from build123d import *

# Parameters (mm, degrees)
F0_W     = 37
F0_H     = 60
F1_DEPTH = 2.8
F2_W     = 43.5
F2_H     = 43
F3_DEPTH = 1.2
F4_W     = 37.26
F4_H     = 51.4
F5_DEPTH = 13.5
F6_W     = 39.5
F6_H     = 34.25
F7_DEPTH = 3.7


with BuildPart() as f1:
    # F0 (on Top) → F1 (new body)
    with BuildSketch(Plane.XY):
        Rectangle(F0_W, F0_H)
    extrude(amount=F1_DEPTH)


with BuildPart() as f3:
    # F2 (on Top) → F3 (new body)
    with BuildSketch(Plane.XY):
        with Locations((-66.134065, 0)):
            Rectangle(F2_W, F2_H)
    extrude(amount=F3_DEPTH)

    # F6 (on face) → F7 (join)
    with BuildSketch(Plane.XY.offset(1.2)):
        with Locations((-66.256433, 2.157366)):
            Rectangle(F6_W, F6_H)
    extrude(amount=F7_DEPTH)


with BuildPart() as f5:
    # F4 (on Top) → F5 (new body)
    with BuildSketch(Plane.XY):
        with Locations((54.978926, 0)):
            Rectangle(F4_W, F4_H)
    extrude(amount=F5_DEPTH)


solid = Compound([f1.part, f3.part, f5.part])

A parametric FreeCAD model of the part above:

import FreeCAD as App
import Part
import Sketcher

doc = App.newDocument("Part")
body = doc.addObject("PartDesign::Body", "Body")

# Sketch on XY plane
sketch1 = body.newObject("Sketcher::SketchObject", "Sketch")
sketch1.AttachmentSupport = (doc.getObject("XY_Plane"), [""])
sketch1.MapMode = "FlatFace"
sketch1.addGeometry(Part.LineSegment(App.Vector(-18.5, 30, 0), App.Vector(-18.5, -30, 0)), False)
sketch1.addGeometry(Part.LineSegment(App.Vector(-18.5, -30, 0), App.Vector(18.5, -30, 0)), False)
sketch1.addGeometry(Part.LineSegment(App.Vector(18.5, -30, 0), App.Vector(18.5, 30, 0)), False)
sketch1.addGeometry(Part.LineSegment(App.Vector(18.5, 30, 0), App.Vector(-18.5, 30, 0)), False)
sketch1.addConstraint(Sketcher.Constraint("Coincident", 0, 2, 1, 1))
sketch1.addConstraint(Sketcher.Constraint("Coincident", 1, 2, 2, 1))
sketch1.addConstraint(Sketcher.Constraint("Coincident", 2, 2, 3, 1))
sketch1.addConstraint(Sketcher.Constraint("Coincident", 3, 2, 0, 1))
sketch1.addConstraint(Sketcher.Constraint("Vertical", 0))
sketch1.addConstraint(Sketcher.Constraint("Horizontal", 1))
sketch1.addConstraint(Sketcher.Constraint("Vertical", 2))
sketch1.addConstraint(Sketcher.Constraint("Horizontal", 3))
sketch1.addConstraint(Sketcher.Constraint("Symmetric", 0, 2, 2, 2, -1, 1))
sketch1.addConstraint(Sketcher.Constraint("DistanceX", 1, 1, 1, 2, 37.0))
sketch1.addConstraint(Sketcher.Constraint("DistanceY", 0, 2, 0, 1, 60.0))
pad1 = body.newObject("PartDesign::Pad", "Pad")
pad1.Profile = sketch1
pad1.Length = 2.8
body2 = doc.addObject("PartDesign::Body", "Body001")

# Sketch on XY plane
sketch2 = body2.newObject("Sketcher::SketchObject", "Sketch001")
sketch2.AttachmentSupport = (doc.getObject("XY_Plane001"), [""])
sketch2.MapMode = "FlatFace"
sketch2.addGeometry(Part.LineSegment(App.Vector(-87.884065, 21.5, 0), App.Vector(-87.884065, -21.5, 0)), False)
sketch2.addGeometry(Part.LineSegment(App.Vector(-87.884065, -21.5, 0), App.Vector(-44.384065, -21.5, 0)), False)
sketch2.addGeometry(Part.LineSegment(App.Vector(-44.384065, -21.5, 0), App.Vector(-44.384065, 21.5, 0)), False)
sketch2.addGeometry(Part.LineSegment(App.Vector(-44.384065, 21.5, 0), App.Vector(-87.884065, 21.5, 0)), False)
sketch2.addConstraint(Sketcher.Constraint("Coincident", 0, 2, 1, 1))
sketch2.addConstraint(Sketcher.Constraint("Coincident", 1, 2, 2, 1))
sketch2.addConstraint(Sketcher.Constraint("Coincident", 2, 2, 3, 1))
sketch2.addConstraint(Sketcher.Constraint("Coincident", 3, 2, 0, 1))
sketch2.addConstraint(Sketcher.Constraint("Vertical", 0))
sketch2.addConstraint(Sketcher.Constraint("Horizontal", 1))
sketch2.addConstraint(Sketcher.Constraint("Vertical", 2))
sketch2.addConstraint(Sketcher.Constraint("Horizontal", 3))
sketch2.addConstraint(Sketcher.Constraint("DistanceY", 0, 2, 0, 1, 43.0))
sketch2.addConstraint(Sketcher.Constraint("DistanceX", 1, 1, 1, 2, 43.5))
sketch2.addConstraint(Sketcher.Constraint("DistanceY", 0, 2, -1, 1, 21.5))
sketch2.addConstraint(Sketcher.Constraint("DistanceX", 0, 2, -1, 1, 87.884065))
pad2 = body2.newObject("PartDesign::Pad", "Pad001")
pad2.Profile = sketch2
pad2.Length = 1.2

# Sketch on XY plane
sketch3 = body2.newObject("Sketcher::SketchObject", "Sketch002")
sketch3.AttachmentSupport = (doc.getObject("XY_Plane001"), [""])
sketch3.MapMode = "FlatFace"
sketch3.AttachmentOffset = App.Placement(App.Vector(0, 0, 1.2), App.Rotation())
sketch3.addGeometry(Part.LineSegment(App.Vector(-86.006433, 19.282366, 0), App.Vector(-86.006433, -14.967634, 0)), False)
sketch3.addGeometry(Part.LineSegment(App.Vector(-86.006433, -14.967634, 0), App.Vector(-46.506433, -14.967634, 0)), False)
sketch3.addGeometry(Part.LineSegment(App.Vector(-46.506433, -14.967634, 0), App.Vector(-46.506433, 19.282366, 0)), False)
sketch3.addGeometry(Part.LineSegment(App.Vector(-46.506433, 19.282366, 0), App.Vector(-86.006433, 19.282366, 0)), False)
sketch3.addConstraint(Sketcher.Constraint("Coincident", 0, 2, 1, 1))
sketch3.addConstraint(Sketcher.Constraint("Coincident", 1, 2, 2, 1))
sketch3.addConstraint(Sketcher.Constraint("Coincident", 2, 2, 3, 1))
sketch3.addConstraint(Sketcher.Constraint("Coincident", 3, 2, 0, 1))
sketch3.addConstraint(Sketcher.Constraint("Vertical", 0))
sketch3.addConstraint(Sketcher.Constraint("Horizontal", 1))
sketch3.addConstraint(Sketcher.Constraint("Vertical", 2))
sketch3.addConstraint(Sketcher.Constraint("Horizontal", 3))
sketch3.addConstraint(Sketcher.Constraint("DistanceX", 1, 1, 1, 2, 39.5))
sketch3.addConstraint(Sketcher.Constraint("DistanceY", 0, 2, 0, 1, 34.25))
sketch3.addConstraint(Sketcher.Constraint("DistanceX", 0, 2, -1, 1, 86.006433))
sketch3.addConstraint(Sketcher.Constraint("DistanceY", 0, 2, -1, 1, 14.967634))
pad3 = body2.newObject("PartDesign::Pad", "Pad002")
pad3.Profile = sketch3
pad3.Length = 3.7
body3 = doc.addObject("PartDesign::Body", "Body002")

# Sketch on XY plane
sketch4 = body3.newObject("Sketcher::SketchObject", "Sketch003")
sketch4.AttachmentSupport = (doc.getObject("XY_Plane002"), [""])
sketch4.MapMode = "FlatFace"
sketch4.addGeometry(Part.LineSegment(App.Vector(36.348926, 25.7, 0), App.Vector(36.348926, -25.7, 0)), False)
sketch4.addGeometry(Part.LineSegment(App.Vector(36.348926, -25.7, 0), App.Vector(73.608926, -25.7, 0)), False)
sketch4.addGeometry(Part.LineSegment(App.Vector(73.608926, -25.7, 0), App.Vector(73.608926, 25.7, 0)), False)
sketch4.addGeometry(Part.LineSegment(App.Vector(73.608926, 25.7, 0), App.Vector(36.348926, 25.7, 0)), False)
sketch4.addConstraint(Sketcher.Constraint("Coincident", 0, 2, 1, 1))
sketch4.addConstraint(Sketcher.Constraint("Coincident", 1, 2, 2, 1))
sketch4.addConstraint(Sketcher.Constraint("Coincident", 2, 2, 3, 1))
sketch4.addConstraint(Sketcher.Constraint("Coincident", 3, 2, 0, 1))
sketch4.addConstraint(Sketcher.Constraint("Vertical", 0))
sketch4.addConstraint(Sketcher.Constraint("Horizontal", 1))
sketch4.addConstraint(Sketcher.Constraint("Vertical", 2))
sketch4.addConstraint(Sketcher.Constraint("Horizontal", 3))
sketch4.addConstraint(Sketcher.Constraint("DistanceY", 0, 2, 0, 1, 51.4))
sketch4.addConstraint(Sketcher.Constraint("DistanceX", 1, 1, 1, 2, 37.26))
sketch4.addConstraint(Sketcher.Constraint("DistanceY", 0, 2, -1, 1, 25.7))
sketch4.addConstraint(Sketcher.Constraint("DistanceX", -1, 1, 0, 2, 36.348926))
pad4 = body3.newObject("PartDesign::Pad", "Pad003")
pad4.Profile = sketch4
pad4.Length = 13.5

doc.recompute()
